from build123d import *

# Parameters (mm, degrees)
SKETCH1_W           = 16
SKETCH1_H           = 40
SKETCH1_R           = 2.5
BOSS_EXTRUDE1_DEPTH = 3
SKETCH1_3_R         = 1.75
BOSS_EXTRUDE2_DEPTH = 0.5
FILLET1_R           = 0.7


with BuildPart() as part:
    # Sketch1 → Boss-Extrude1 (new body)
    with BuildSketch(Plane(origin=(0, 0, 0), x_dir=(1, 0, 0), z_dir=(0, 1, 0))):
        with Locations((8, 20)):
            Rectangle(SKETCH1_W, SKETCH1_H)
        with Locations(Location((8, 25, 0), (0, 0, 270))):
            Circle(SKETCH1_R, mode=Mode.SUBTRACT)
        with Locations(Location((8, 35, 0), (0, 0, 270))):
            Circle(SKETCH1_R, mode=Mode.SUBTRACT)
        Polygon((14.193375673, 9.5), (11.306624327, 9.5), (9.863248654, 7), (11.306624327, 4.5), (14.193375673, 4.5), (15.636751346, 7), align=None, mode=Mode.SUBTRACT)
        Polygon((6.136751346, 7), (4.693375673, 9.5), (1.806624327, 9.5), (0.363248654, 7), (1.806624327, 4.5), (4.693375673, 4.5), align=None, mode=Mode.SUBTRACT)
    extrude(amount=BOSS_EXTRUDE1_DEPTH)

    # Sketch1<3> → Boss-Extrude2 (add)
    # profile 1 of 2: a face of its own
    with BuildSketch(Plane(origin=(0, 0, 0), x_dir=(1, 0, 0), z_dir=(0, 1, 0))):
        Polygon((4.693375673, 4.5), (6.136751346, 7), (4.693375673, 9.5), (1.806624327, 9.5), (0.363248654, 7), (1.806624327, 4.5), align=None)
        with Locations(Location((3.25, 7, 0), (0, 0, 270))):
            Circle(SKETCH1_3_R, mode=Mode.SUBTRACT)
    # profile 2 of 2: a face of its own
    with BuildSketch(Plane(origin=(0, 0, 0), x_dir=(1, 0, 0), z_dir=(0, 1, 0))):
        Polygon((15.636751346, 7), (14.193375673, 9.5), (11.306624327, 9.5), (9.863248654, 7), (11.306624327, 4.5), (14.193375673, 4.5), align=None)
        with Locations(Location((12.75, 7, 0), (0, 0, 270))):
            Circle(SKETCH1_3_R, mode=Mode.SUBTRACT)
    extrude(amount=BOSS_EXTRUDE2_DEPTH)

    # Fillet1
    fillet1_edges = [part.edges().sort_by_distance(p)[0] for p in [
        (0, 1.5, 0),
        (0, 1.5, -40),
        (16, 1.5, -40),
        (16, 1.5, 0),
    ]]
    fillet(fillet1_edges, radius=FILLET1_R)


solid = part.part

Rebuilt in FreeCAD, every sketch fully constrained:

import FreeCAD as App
import Part
import Sketcher
Q = App.Units.Quantity


def edges_at(feature, points):
    """Names of the edges that pass closest to the given points."""
    edges = feature.Shape.Edges
    near = lambda p: min(range(len(edges)), key=lambda i: edges[i].distToShape(Part.Vertex(*p))[0])
    return sorted({f"Edge{near(p) + 1}" for p in points})

doc = App.newDocument("Part")
body = doc.addObject("PartDesign::Body", "Body")

# Sketch on XZ plane
sketch1 = body.newObject("Sketcher::SketchObject", "Sketch")
sketch1.AttachmentSupport = (doc.getObject("XZ_Plane"), [""])
sketch1.MapMode = "FlatFace"
sketch1.addGeometry([
    Part.LineSegment(App.Vector(0, -40, 0), App.Vector(0, 0, 0)),  # 0
    Part.LineSegment(App.Vector(0, 0, 0), App.Vector(16, 0, 0)),  # 1
    Part.LineSegment(App.Vector(16, 0, 0), App.Vector(16, -40, 0)),  # 2
    Part.LineSegment(App.Vector(16, -40, 0), App.Vector(0, -40, 0)),  # 3
    Part.LineSegment(App.Vector(4.7, -9.5, 0), App.Vector(6.1, -7, 0)),  # 4
    Part.LineSegment(App.Vector(6.1, -7, 0), App.Vector(4.7, -4.5, 0)),  # 5
    Part.LineSegment(App.Vector(4.7, -4.5, 0), App.Vector(1.8, -4.5, 0)),  # 6
    Part.LineSegment(App.Vector(1.8, -4.5, 0), App.Vector(0.4, -7, 0)),  # 7
    Part.LineSegment(App.Vector(0.4, -7, 0), App.Vector(1.8, -9.5, 0)),  # 8
    Part.LineSegment(App.Vector(1.8, -9.5, 0), App.Vector(4.7, -9.5, 0)),  # 9
    Part.LineSegment(App.Vector(11.3, -9.5, 0), App.Vector(14.2, -9.5, 0)),  # 10
    Part.LineSegment(App.Vector(14.2, -9.5, 0), App.Vector(15.6, -7, 0)),  # 11
    Part.LineSegment(App.Vector(15.6, -7, 0), App.Vector(14.2, -4.5, 0)),  # 12
    Part.LineSegment(App.Vector(14.2, -4.5, 0), App.Vector(11.3, -4.5, 0)),  # 13
    Part.LineSegment(App.Vector(11.3, -4.5, 0), App.Vector(9.9, -7, 0)),  # 14
    Part.LineSegment(App.Vector(9.9, -7, 0), App.Vector(11.3, -9.5, 0)),  # 15
    Part.Circle(App.Vector(8, -25, 0), App.Vector(0, 0, 1), 2.5),  # 16
    Part.Circle(App.Vector(8, -35, 0), App.Vector(0, 0, 1), 2.5),  # 17
], False)
sketch1.addConstraint([
    Sketcher.Constraint("Coincident", 0, 2, 1, 1),
    Sketcher.Constraint("Coincident", 1, 2, 2, 1),
    Sketcher.Constraint("Coincident", 2, 2, 3, 1),
    Sketcher.Constraint("Coincident", 3, 2, 0, 1),
    Sketcher.Constraint("Coincident", 4, 2, 5, 1),
    Sketcher.Constraint("Coincident", 5, 2, 6, 1),
    Sketcher.Constraint("Coincident", 6, 2, 7, 1),
    Sketcher.Constraint("Coincident", 7, 2, 8, 1),
    Sketcher.Constraint("Coincident", 8, 2, 9, 1),
    Sketcher.Constraint("Coincident", 9, 2, 4, 1),
    Sketcher.Constraint("Coincident", 10, 2, 11, 1),
    Sketcher.Constraint("Coincident", 11, 2, 12, 1),
    Sketcher.Constraint("Coincident", 12, 2, 13, 1),
    Sketcher.Constraint("Coincident", 13, 2, 14, 1),
    Sketcher.Constraint("Coincident", 14, 2, 15, 1),
    Sketcher.Constraint("Coincident", 15, 2, 10, 1),
    Sketcher.Constraint("Vertical", 0),
    Sketcher.Constraint("Horizontal", 1),
    Sketcher.Constraint("Vertical", 2),
    Sketcher.Constraint("Horizontal", 3),
    Sketcher.Constraint("Horizontal", 6),
    Sketcher.Constraint("Horizontal", 9),
    Sketcher.Constraint("Horizontal", 10),
    Sketcher.Constraint("Horizontal", 13),
    Sketcher.Constraint("Coincident", 0, 2, -1, 1),
    Sketcher.Constraint("Equal", 16, 17),
    Sketcher.Constraint("Parallel", 4, 7),
    Sketcher.Constraint("Parallel", 5, 8),
    Sketcher.Constraint("Parallel", 7, 11),
    Sketcher.Constraint("Parallel", 8, 12),
    Sketcher.Constraint("Parallel", 11, 14),
    Sketcher.Constraint("Parallel", 12, 15),
    Sketcher.Constraint("Horizontal", 4, 2, 7, 2),
    Sketcher.Constraint("Horizontal", 9, 2, 10, 2),
    Sketcher.Constraint("Horizontal", 7, 2, 11, 2),
    Sketcher.Constraint("Horizontal", 6, 2, 12, 2),
    Sketcher.Constraint("Horizontal", 11, 2, 14, 2),
    Sketcher.Constraint("Vertical", 16, 3, 17, 3),
    Sketcher.Constraint("Vertical", 6, 2, 8, 2),
    Sketcher.Constraint("Vertical", 5, 2, 9, 2),
    Sketcher.Constraint("Equal", 9, 10),
    Sketcher.Constraint("Diameter", 16, Q("5 mm")),
    Sketcher.Constraint("DistanceX", 1, 1, 1, 2, Q("16 mm")),
    Sketcher.Constraint("DistanceY", 0, 1, 0, 2, Q("40 mm")),
    Sketcher.Constraint("Angle", 4, Q("60 deg")),
    Sketcher.Constraint("DistanceX", -1, 1, 16, 3, Q("8 mm")),
    Sketcher.Constraint("DistanceY", 16, 3, -1, 1, Q("25 mm")),
    Sketcher.Constraint("DistanceY", 17, 3, -1, 1, Q("35 mm")),
    Sketcher.Constraint("DistanceY", 4, 2, -1, 1, Q("7 mm")),
    Sketcher.Constraint("DistanceY", 8, 2, 6, 2, Q("5 mm")),
    Sketcher.Constraint("DistanceX", 9, 2, 10, 2, Q("9.5 mm")),
    Sketcher.Constraint("DistanceX", 6, 2, 6, 1, Q("2.886751 mm")),
    Sketcher.Constraint("DistanceX", -1, 1, 4, 2, Q("6.136751 mm")),
])
pad1 = body.newObject("PartDesign::Pad", "Pad")
pad1.Profile = sketch1
pad1.Length = 3
pad1.Reversed = True

# Sketch on XZ plane
sketch2 = body.newObject("Sketcher::SketchObject", "Sketch001")
sketch2.AttachmentSupport = (doc.getObject("XZ_Plane"), [""])
sketch2.MapMode = "FlatFace"
sketch2.addGeometry([
    Part.LineSegment(App.Vector(4.7, -4.5, 0), App.Vector(6.1, -7, 0)),  # 0
    Part.LineSegment(App.Vector(6.1, -7, 0), App.Vector(4.7, -9.5, 0)),  # 1
    Part.LineSegment(App.Vector(4.7, -9.5, 0), App.Vector(1.8, -9.5, 0)),  # 2
    Part.LineSegment(App.Vector(1.8, -9.5, 0), App.Vector(0.4, -7, 0)),  # 3
    Part.LineSegment(App.Vector(0.4, -7, 0), App.Vector(1.8, -4.5, 0)),  # 4
    Part.LineSegment(App.Vector(1.8, -4.5, 0), App.Vector(4.7, -4.5, 0)),  # 5
    Part.Circle(App.Vector(3.2, -7, 0), App.Vector(0, 0, 1), 1.8),  # 6
    Part.LineSegment(App.Vector(15.6, -7, 0), App.Vector(14.2, -9.5, 0)),  # 7
    Part.LineSegment(App.Vector(14.2, -9.5, 0), App.Vector(11.3, -9.5, 0)),  # 8
    Part.LineSegment(App.Vector(11.3, -9.5, 0), App.Vector(9.9, -7, 0)),  # 9
    Part.LineSegment(App.Vector(9.9, -7, 0), App.Vector(11.3, -4.5, 0)),  # 10
    Part.LineSegment(App.Vector(11.3, -4.5, 0), App.Vector(14.2, -4.5, 0)),  # 11
    Part.LineSegment(App.Vector(14.2, -4.5, 0), App.Vector(15.6, -7, 0)),  # 12
    Part.Circle(App.Vector(12.8, -7, 0), App.Vector(0, 0, 1), 1.8),  # 13
], False)
sketch2.addConstraint([
    Sketcher.Constraint("Coincident", 0, 2, 1, 1),
    Sketcher.Constraint("Coincident", 1, 2, 2, 1),
    Sketcher.Constraint("Coincident", 2, 2, 3, 1),
    Sketcher.Constraint("Coincident", 3, 2, 4, 1),
    Sketcher.Constraint("Coincident", 4, 2, 5, 1),
    Sketcher.Constraint("Coincident", 5, 2, 0, 1),
    Sketcher.Constraint("Coincident", 7, 2, 8, 1),
    Sketcher.Constraint("Coincident", 8, 2, 9, 1),
    Sketcher.Constraint("Coincident", 9, 2, 10, 1),
    Sketcher.Constraint("Coincident", 10, 2, 11, 1),
    Sketcher.Constraint("Coincident", 11, 2, 12, 1),
    Sketcher.Constraint("Coincident", 12, 2, 7, 1),
    Sketcher.Constraint("Horizontal", 2),
    Sketcher.Constraint("Horizontal", 5),
    Sketcher.Constraint("Horizontal", 8),
    Sketcher.Constraint("Horizontal", 11),
    Sketcher.Constraint("Equal", 6, 13),
    Sketcher.Constraint("Parallel", 0, 3),
    Sketcher.Constraint("Parallel", 1, 4),
    Sketcher.Constraint("Parallel", 4, 7),
    Sketcher.Constraint("Parallel", 3, 9),
    Sketcher.Constraint("Parallel", 7, 10),
    Sketcher.Constraint("Parallel", 9, 12),
    Sketcher.Constraint("Horizontal", 6, 3, 13, 3),
    Sketcher.Constraint("Horizontal", 13, 3, 0, 2),
    Sketcher.Constraint("Horizontal", 0, 2, 3, 2),
    Sketcher.Constraint("Horizontal", 2, 2, 7, 2),
    Sketcher.Constraint("Horizontal", 3, 2, 9, 2),
    Sketcher.Constraint("Horizontal", 5, 2, 10, 2),
    Sketcher.Constraint("Horizontal", 9, 2, 12, 2),
    Sketcher.Constraint("Vertical", 2, 2, 4, 2),
    Sketcher.Constraint("Vertical", 1, 2, 5, 2),
    Sketcher.Constraint("Equal", 5, 8),
    Sketcher.Constraint("Diameter", 6, Q("3.5 mm")),
    Sketcher.Constraint("Angle", 0, Q("-60 deg")),
    Sketcher.Constraint("DistanceY", 6, 3, -1, 1, Q("7 mm")),
    Sketcher.Constraint("DistanceY", 2, 2, 4, 2, Q("5 mm")),
    Sketcher.Constraint("DistanceX", 6, 3, 13, 3, Q("9.5 mm")),
    Sketcher.Constraint("DistanceX", 1, 2, 7, 2, Q("9.5 mm")),
    Sketcher.Constraint("DistanceX", -1, 1, 6, 3, Q("3.25 mm")),
    Sketcher.Constraint("DistanceX", 2, 2, 2, 1, Q("2.886751 mm")),
    Sketcher.Constraint("DistanceX", -1, 1, 0, 2, Q("6.136751 mm")),
])
pad2 = body.newObject("PartDesign::Pad", "Pad001")
pad2.Profile = sketch2
pad2.Length = 0.5
pad2.Reversed = True
doc.recompute()

fillet = body.newObject("PartDesign::Fillet", "Fillet")
fillet.Base = (pad2, edges_at(pad2, [
    (0, 1.5, 0),
    (0, 1.5, -40),
    (16, 1.5, -40),
    (16, 1.5, 0),
]))
fillet.Radius = 0.7

doc.recompute()
